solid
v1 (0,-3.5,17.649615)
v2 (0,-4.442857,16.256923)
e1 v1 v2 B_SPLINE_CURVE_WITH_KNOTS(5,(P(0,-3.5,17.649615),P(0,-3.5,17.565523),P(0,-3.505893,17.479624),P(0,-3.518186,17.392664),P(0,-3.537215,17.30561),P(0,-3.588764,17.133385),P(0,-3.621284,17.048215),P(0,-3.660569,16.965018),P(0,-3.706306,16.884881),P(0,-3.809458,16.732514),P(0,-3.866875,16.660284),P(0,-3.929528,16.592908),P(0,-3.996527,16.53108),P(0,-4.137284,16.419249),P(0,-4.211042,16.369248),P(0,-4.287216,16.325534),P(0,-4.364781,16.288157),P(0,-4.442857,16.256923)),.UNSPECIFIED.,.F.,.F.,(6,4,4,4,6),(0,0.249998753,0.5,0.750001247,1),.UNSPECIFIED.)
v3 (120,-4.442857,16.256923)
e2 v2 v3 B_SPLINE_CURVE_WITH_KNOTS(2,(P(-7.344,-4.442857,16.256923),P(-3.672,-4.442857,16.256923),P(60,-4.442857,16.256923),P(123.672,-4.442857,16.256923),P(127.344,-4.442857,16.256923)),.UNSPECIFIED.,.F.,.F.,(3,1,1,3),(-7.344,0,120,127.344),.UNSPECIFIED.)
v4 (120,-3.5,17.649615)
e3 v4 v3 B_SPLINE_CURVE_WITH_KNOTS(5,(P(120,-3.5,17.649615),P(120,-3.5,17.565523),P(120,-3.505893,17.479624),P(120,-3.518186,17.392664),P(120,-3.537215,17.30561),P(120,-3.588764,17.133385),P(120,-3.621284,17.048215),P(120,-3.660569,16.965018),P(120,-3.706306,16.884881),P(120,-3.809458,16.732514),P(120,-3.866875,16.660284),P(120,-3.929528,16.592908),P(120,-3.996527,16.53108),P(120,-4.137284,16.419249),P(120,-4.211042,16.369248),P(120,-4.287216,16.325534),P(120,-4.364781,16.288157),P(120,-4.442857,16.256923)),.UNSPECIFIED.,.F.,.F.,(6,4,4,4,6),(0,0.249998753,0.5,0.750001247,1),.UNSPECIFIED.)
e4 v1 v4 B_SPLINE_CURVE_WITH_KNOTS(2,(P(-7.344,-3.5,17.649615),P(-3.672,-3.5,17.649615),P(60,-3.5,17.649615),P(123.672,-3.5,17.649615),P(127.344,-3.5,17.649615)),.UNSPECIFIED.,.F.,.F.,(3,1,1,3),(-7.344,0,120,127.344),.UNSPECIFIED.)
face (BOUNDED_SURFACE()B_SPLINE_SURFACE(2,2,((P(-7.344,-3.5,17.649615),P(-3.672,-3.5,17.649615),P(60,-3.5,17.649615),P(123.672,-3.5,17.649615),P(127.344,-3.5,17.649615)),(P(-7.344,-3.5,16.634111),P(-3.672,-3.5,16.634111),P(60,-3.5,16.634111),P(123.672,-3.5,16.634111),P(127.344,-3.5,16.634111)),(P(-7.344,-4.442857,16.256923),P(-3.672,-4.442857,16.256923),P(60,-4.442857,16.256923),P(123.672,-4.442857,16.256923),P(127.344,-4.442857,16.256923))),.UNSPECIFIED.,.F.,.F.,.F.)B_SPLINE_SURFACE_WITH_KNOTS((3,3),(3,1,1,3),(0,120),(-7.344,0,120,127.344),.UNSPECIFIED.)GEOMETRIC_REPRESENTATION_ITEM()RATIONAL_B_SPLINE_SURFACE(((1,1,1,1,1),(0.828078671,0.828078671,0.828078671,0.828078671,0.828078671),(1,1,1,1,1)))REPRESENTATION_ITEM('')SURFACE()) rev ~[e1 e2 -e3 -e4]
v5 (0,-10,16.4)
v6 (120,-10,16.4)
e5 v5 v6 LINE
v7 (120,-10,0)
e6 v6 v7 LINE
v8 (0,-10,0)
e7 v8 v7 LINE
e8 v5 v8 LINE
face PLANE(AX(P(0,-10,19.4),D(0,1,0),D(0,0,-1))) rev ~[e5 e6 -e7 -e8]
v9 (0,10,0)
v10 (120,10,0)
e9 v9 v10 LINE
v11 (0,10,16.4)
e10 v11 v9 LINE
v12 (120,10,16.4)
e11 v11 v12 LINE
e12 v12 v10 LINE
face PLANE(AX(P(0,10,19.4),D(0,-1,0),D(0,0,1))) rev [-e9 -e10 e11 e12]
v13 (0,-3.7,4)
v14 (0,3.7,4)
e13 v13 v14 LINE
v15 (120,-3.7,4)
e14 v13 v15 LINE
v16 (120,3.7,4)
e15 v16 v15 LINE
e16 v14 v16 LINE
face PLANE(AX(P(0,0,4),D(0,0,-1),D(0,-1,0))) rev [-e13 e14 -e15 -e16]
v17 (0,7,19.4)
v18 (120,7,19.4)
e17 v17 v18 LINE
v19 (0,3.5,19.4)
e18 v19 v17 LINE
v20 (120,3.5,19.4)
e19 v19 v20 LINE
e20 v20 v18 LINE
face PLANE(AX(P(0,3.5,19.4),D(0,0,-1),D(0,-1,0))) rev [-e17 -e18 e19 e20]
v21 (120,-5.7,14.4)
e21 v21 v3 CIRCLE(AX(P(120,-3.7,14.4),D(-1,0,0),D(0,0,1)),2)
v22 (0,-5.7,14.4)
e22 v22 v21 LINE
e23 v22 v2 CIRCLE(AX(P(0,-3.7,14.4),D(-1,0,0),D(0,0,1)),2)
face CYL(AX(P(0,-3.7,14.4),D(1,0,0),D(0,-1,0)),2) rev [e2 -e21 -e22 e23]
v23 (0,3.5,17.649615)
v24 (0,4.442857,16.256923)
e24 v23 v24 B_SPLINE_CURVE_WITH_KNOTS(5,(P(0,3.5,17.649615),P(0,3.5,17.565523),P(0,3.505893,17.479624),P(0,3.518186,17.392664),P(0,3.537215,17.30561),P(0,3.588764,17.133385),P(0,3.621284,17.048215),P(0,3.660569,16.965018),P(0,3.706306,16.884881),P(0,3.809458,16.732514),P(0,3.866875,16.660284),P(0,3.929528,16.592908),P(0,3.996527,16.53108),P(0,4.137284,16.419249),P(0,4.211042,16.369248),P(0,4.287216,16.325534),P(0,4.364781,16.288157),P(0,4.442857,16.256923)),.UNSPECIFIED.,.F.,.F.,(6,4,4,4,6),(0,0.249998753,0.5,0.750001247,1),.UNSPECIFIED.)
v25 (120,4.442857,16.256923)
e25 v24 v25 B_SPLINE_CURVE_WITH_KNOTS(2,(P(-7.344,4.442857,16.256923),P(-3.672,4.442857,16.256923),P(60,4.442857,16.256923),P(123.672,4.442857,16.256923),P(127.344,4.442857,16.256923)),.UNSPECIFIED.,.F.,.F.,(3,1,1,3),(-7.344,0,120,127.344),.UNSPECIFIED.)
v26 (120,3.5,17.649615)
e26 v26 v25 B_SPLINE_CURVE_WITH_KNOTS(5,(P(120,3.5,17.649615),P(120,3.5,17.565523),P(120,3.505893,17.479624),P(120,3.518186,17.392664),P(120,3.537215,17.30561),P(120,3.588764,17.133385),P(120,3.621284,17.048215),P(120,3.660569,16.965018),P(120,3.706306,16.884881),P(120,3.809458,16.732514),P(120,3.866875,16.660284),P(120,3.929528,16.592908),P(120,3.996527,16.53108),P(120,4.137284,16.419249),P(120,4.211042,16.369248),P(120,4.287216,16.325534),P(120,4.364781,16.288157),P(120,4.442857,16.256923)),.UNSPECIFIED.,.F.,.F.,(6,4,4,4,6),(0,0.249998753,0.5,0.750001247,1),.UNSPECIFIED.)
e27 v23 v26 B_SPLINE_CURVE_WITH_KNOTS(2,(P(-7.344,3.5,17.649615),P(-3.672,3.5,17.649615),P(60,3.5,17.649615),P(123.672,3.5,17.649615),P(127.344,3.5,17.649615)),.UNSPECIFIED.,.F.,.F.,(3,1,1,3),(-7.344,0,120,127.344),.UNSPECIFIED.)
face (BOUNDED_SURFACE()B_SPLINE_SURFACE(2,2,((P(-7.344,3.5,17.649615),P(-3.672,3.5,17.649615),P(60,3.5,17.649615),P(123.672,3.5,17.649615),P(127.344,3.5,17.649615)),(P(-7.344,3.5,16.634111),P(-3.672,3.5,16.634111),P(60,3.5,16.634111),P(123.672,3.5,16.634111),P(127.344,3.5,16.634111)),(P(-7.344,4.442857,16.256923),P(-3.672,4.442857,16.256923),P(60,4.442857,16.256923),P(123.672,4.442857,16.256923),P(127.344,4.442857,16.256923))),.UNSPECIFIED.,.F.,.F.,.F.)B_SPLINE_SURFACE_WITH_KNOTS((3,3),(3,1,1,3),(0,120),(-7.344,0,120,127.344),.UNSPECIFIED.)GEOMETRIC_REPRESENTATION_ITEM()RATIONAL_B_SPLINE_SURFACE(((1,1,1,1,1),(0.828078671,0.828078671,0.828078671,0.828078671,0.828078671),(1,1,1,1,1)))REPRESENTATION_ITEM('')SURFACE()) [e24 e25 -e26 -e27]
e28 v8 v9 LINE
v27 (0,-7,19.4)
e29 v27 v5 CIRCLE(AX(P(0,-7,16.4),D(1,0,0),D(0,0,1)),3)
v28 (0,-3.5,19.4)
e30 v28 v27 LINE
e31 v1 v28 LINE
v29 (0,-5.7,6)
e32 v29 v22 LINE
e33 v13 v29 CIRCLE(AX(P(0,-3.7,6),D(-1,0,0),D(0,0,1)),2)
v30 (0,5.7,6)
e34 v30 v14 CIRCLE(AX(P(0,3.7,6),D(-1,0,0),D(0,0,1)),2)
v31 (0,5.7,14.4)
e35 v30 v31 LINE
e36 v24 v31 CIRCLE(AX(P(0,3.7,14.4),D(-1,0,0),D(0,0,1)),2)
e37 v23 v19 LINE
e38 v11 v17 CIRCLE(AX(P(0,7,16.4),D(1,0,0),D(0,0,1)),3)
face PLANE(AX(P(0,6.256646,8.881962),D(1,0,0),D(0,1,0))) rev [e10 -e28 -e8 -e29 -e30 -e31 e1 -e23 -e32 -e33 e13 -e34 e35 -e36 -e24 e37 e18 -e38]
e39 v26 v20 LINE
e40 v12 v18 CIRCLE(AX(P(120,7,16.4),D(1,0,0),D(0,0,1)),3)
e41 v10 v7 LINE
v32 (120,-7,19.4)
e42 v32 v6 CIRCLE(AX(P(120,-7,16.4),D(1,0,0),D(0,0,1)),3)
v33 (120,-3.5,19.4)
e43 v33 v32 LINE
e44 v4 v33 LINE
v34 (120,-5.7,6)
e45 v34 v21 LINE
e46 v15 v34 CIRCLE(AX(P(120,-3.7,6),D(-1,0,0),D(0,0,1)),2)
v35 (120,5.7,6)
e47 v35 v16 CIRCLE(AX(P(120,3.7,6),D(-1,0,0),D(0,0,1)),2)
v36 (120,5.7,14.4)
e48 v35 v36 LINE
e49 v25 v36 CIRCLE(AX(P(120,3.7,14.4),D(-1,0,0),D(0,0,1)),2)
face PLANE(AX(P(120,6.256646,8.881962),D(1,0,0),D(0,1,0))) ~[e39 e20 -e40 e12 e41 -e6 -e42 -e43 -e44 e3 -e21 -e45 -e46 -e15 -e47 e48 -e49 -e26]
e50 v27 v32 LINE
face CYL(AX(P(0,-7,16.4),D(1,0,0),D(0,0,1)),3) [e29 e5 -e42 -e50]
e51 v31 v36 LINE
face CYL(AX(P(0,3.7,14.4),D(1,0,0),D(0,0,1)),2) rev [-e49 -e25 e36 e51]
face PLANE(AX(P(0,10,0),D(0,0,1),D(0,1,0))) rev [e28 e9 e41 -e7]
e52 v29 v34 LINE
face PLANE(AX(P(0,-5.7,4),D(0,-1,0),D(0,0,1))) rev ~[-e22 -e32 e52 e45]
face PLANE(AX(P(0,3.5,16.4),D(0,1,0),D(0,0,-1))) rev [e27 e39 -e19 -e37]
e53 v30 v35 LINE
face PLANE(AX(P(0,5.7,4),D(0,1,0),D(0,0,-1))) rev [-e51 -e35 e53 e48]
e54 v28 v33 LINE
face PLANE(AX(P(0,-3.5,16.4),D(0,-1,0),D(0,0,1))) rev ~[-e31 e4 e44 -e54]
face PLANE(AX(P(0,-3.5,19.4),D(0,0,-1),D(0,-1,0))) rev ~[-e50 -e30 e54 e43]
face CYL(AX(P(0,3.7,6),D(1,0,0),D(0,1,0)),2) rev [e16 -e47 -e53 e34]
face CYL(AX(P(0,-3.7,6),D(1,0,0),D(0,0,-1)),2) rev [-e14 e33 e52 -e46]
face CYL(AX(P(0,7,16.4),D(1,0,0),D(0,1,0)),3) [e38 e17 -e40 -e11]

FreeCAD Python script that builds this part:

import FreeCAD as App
import Part
import Sketcher
Q = App.Units.Quantity


def edges_at(feature, points):
    """Names of the edges that pass closest to the given points."""
    edges = feature.Shape.Edges
    near = lambda p: min(range(len(edges)), key=lambda i: edges[i].distToShape(Part.Vertex(*p))[0])
    return sorted({f"Edge{near(p) + 1}" for p in points})

doc = App.newDocument("Part")
body = doc.addObject("PartDesign::Body", "Body")

# Sketch on YZ plane
sketch1 = body.newObject("Sketcher::SketchObject", "Sketch")
sketch1.AttachmentSupport = (doc.getObject("YZ_Plane"), [""])
sketch1.MapMode = "FlatFace"
sketch1.addGeometry(Part.LineSegment(App.Vector(-10, 19.4, 0), App.Vector(-10, 0, 0)), False)
sketch1.addGeometry(Part.LineSegment(App.Vector(-10, 0, 0), App.Vector(0, 0, 0)), False)
sketch1.addGeometry(Part.LineSegment(App.Vector(0, 0, 0), App.Vector(0, 4, 0)), False)
sketch1.addGeometry(Part.LineSegment(App.Vector(0, 4, 0), App.Vector(-5.7, 4, 0)), False)
sketch1.addGeometry(Part.LineSegment(App.Vector(-5.7, 4, 0), App.Vector(-5.7, 16.4, 0)), False)
sketch1.addGeometry(Part.LineSegment(App.Vector(-5.7, 16.4, 0), App.Vector(-3.5, 16.4, 0)), False)
sketch1.addGeometry(Part.LineSegment(App.Vector(-3.5, 16.4, 0), App.Vector(-3.5, 19.4, 0)), False)
sketch1.addGeometry(Part.LineSegment(App.Vector(-3.5, 19.4, 0), App.Vector(-10, 19.4, 0)), False)
sketch1.addConstraint(Sketcher.Constraint("Coincident", 0, 2, 1, 1))
sketch1.addConstraint(Sketcher.Constraint("Coincident", 1, 2, 2, 1))
sketch1.addConstraint(Sketcher.Constraint("Coincident", 2, 2, 3, 1))
sketch1.addConstraint(Sketcher.Constraint("Coincident", 3, 2, 4, 1))
sketch1.addConstraint(Sketcher.Constraint("Coincident", 4, 2, 5, 1))
sketch1.addConstraint(Sketcher.Constraint("Coincident", 5, 2, 6, 1))
sketch1.addConstraint(Sketcher.Constraint("Coincident", 6, 2, 7, 1))
sketch1.addConstraint(Sketcher.Constraint("Coincident", 7, 2, 0, 1))
sketch1.addConstraint(Sketcher.Constraint("Vertical", 0))
sketch1.addConstraint(Sketcher.Constraint("Horizontal", 1))
sketch1.addConstraint(Sketcher.Constraint("Vertical", 2))
sketch1.addConstraint(Sketcher.Constraint("Horizontal", 3))
sketch1.addConstraint(Sketcher.Constraint("Vertical", 4))
sketch1.addConstraint(Sketcher.Constraint("Horizontal", 5))
sketch1.addConstraint(Sketcher.Constraint("Vertical", 6))
sketch1.addConstraint(Sketcher.Constraint("Horizontal", 7))
sketch1.addConstraint(Sketcher.Constraint("Coincident", 1, 2, -1, 1))
sketch1.addConstraint(Sketcher.Constraint("DistanceX", 1, 1, 1, 2, Q("10 mm")))
sketch1.addConstraint(Sketcher.Constraint("DistanceY", 2, 1, 2, 2, Q("4 mm")))
sketch1.addConstraint(Sketcher.Constraint("DistanceY", 6, 1, 6, 2, Q("3 mm")))
sketch1.addConstraint(Sketcher.Constraint("DistanceX", 3, 2, 3, 1, Q("5.7 mm")))
sketch1.addConstraint(Sketcher.Constraint("DistanceX", 5, 1, 5, 2, Q("2.2 mm")))
sketch1.addConstraint(Sketcher.Constraint("DistanceY", 0, 2, 0, 1, Q("19.4 mm")))
pad1 = body.newObject("PartDesign::Pad", "Pad")
pad1.Profile = sketch1
pad1.Length = 120
body2 = doc.addObject("PartDesign::Body", "Body001")
doc.recompute()

body2.BaseFeature = body
doc.recompute()

mirroring = doc.addObject("Part::Mirroring", "Mirroring")
mirroring.Source = body
mirroring.Base = App.Vector(0, 0, 0)
mirroring.Normal = App.Vector(0, -1, 0)
body3 = doc.addObject("PartDesign::Body", "Body002")
body3.BaseFeature = mirroring
boolean = body2.newObject("PartDesign::Boolean", "Boolean")
boolean.Type = "Fuse"
boolean.addObjects([body3])
doc.recompute()

fillet = body2.newObject("PartDesign::Fillet", "Fillet")
fillet.Base = (boolean, edges_at(boolean, [
    (60, -5.7, 16.4),
    (60, -5.7, 4),
    (60, 5.7, 4),
    (60, 5.7, 16.4),
]))
fillet.Radius = 2
doc.recompute()

fillet2 = body2.newObject("PartDesign::Fillet", "Fillet001")
fillet2.Base = (fillet, edges_at(fillet, [(60, -10, 19.4), (60, 10, 19.4)]))
fillet2.Radius = 3
doc.recompute()

fillet3 = body2.newObject("PartDesign::Fillet", "Fillet002")
fillet3.Base = (fillet2, edges_at(fillet2, [(60, -3.5, 16.4), (60, 3.5, 16.4)]))
fillet3.Radius = 1.5
mirroring.Visibility = False

doc.recompute()
